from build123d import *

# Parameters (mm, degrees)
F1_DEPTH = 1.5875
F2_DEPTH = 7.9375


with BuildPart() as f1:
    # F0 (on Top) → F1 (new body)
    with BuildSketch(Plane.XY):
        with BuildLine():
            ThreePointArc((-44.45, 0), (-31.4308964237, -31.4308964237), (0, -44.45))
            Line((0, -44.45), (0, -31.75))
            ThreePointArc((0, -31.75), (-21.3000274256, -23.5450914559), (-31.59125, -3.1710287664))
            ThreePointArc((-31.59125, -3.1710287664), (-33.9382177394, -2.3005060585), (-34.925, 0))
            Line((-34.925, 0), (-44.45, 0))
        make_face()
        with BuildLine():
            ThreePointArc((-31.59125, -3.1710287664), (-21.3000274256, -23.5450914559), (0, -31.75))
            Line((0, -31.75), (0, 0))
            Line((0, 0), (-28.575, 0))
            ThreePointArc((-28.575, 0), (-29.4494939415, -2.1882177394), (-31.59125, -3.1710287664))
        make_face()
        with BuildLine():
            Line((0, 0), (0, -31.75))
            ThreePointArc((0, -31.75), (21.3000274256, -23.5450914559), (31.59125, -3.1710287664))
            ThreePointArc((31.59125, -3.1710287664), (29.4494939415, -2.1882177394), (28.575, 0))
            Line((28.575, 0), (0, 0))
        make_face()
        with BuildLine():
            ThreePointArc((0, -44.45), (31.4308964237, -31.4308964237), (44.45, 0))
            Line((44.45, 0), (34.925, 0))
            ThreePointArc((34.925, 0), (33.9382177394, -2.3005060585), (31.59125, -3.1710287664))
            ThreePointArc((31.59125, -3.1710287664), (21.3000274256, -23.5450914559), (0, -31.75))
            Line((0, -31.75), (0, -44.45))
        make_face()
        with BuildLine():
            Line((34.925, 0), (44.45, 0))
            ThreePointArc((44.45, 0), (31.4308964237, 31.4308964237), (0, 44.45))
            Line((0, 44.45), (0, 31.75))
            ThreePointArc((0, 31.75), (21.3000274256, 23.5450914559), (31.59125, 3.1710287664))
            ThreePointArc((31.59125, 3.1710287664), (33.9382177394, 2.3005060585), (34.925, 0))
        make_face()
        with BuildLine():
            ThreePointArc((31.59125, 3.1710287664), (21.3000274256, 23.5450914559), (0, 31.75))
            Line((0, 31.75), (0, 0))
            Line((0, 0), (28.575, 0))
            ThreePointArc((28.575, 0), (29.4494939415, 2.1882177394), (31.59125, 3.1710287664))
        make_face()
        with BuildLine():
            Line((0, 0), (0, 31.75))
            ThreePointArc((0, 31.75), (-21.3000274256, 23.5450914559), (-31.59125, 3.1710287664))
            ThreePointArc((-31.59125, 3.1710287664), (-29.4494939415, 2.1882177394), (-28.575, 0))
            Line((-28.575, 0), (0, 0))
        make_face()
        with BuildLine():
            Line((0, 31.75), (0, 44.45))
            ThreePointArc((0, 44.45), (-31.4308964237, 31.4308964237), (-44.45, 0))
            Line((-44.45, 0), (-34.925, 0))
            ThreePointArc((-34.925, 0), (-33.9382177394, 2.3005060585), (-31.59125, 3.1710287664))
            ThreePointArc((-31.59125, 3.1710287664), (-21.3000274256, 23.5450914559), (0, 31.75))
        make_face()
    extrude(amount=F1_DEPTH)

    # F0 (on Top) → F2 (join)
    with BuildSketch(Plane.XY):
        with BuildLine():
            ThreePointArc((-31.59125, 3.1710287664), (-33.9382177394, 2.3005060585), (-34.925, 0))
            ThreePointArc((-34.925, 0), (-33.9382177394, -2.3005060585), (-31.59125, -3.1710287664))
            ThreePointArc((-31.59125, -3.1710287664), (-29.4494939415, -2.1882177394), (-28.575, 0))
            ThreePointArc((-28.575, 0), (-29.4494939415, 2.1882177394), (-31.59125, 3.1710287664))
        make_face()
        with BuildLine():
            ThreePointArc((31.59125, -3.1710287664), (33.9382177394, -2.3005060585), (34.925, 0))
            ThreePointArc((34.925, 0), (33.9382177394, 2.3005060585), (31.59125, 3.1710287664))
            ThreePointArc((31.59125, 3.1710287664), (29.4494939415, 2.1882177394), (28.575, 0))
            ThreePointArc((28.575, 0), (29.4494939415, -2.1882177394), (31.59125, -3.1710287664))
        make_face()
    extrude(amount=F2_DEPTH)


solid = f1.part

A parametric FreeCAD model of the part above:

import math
import FreeCAD as App
import Part
import Sketcher
Q = App.Units.Quantity

doc = App.newDocument("Part")
body = doc.addObject("PartDesign::Body", "Body")

sketch1 = body.newObject("Sketcher::SketchObject", "Sketch")
sketch1.AttachmentSupport = (doc.getObject("XY_Plane"), [""])
sketch1.MapMode = "FlatFace"
sketch1.addGeometry([
    Part.ArcOfCircle(Part.Circle(App.Vector(0, 0, 0), App.Vector(0, 0, 1), 44.45), math.radians(180), math.radians(270)),
    Part.ArcOfCircle(Part.Circle(App.Vector(0, 0, 0), App.Vector(0, 0, 1), 44.45), math.radians(-90), math.radians(0)),
    Part.ArcOfCircle(Part.Circle(App.Vector(0, 0, 0), App.Vector(0, 0, 1), 44.45), math.radians(0), math.radians(90)),
    Part.ArcOfCircle(Part.Circle(App.Vector(0, 0, 0), App.Vector(0, 0, 1), 44.45), math.radians(90), math.radians(180)),
    Part.ArcOfCircle(Part.Circle(App.Vector(-31.75, 0, 0), App.Vector(0, 0, 1), 3.175), math.radians(0), math.radians(87.134016)),
    Part.ArcOfCircle(Part.Circle(App.Vector(-31.75, 0, 0), App.Vector(0, 0, 1), 3.175), math.radians(-87.134016), math.radians(0)),
    Part.ArcOfCircle(Part.Circle(App.Vector(-31.75, 0, 0), App.Vector(0, 0, 1), 3.175), math.radians(180), math.radians(272.865984)),
    Part.ArcOfCircle(Part.Circle(App.Vector(-31.75, 0, 0), App.Vector(0, 0, 1), 3.175), math.radians(87.134016), math.radians(180)),
    Part.ArcOfCircle(Part.Circle(App.Vector(31.75, 0, 0), App.Vector(0, 0, 1), 3.175), math.radians(0), math.radians(92.865984)),
    Part.ArcOfCircle(Part.Circle(App.Vector(31.75, 0, 0), App.Vector(0, 0, 1), 3.175), math.radians(-92.865984), math.radians(0)),
    Part.ArcOfCircle(Part.Circle(App.Vector(31.75, 0, 0), App.Vector(0, 0, 1), 3.175), math.radians(180), math.radians(267.134016)),
    Part.ArcOfCircle(Part.Circle(App.Vector(31.75, 0, 0), App.Vector(0, 0, 1), 3.175), math.radians(92.865984), math.radians(180)),
], False)
sketch1.addConstraint([
    Sketcher.Constraint("Tangent", 0, 2, 1, 1),
    Sketcher.Constraint("Tangent", 1, 2, 2, 1),
    Sketcher.Constraint("Tangent", 2, 2, 3, 1),
    Sketcher.Constraint("Tangent", 3, 2, 0, 1),
    Sketcher.Constraint("Tangent", 4, 1, 5, 2),
    Sketcher.Constraint("Tangent", 5, 1, 6, 2),
    Sketcher.Constraint("Tangent", 6, 1, 7, 2),
    Sketcher.Constraint("Tangent", 7, 1, 4, 2),
    Sketcher.Constraint("Tangent", 8, 1, 9, 2),
    Sketcher.Constraint("Tangent", 9, 1, 10, 2),
    Sketcher.Constraint("Tangent", 10, 1, 11, 2),
    Sketcher.Constraint("Tangent", 11, 1, 8, 2),
    Sketcher.Constraint("Coincident", 0, 3, -1, 1),
    Sketcher.Constraint("Equal", 0, 1),
    Sketcher.Constraint("Equal", 4, 5),
    Sketcher.Constraint("Equal", 7, 8),
    Sketcher.Constraint("Equal", 8, 9),
    Sketcher.Constraint("Symmetric", 4, 3, 8, 3, -1, 1),
    Sketcher.Constraint("Symmetric", 5, 1, 9, 1, -2),
    Sketcher.Constraint("PointOnObject", 0, 2, -2),
    Sketcher.Constraint("PointOnObject", 1, 2, -1),
    Sketcher.Constraint("PointOnObject", 2, 2, -2),
    Sketcher.Constraint("PointOnObject", 3, 2, -1),
    Sketcher.Constraint("PointOnObject", 4, 1, -1),
    Sketcher.Constraint("PointOnObject", 6, 1, -1),
    Sketcher.Constraint("PointOnObject", 8, 1, -1),
    Sketcher.Constraint("PointOnObject", 10, 1, -1),
    Sketcher.Constraint("Horizontal", 7, 1, 11, 1),
    Sketcher.Constraint("Vertical", 5, 1, 7, 1),
    Sketcher.Constraint("Radius", 0, Q("1.75 in")),
    Sketcher.Constraint("Radius", 4, Q("0.125 in")),
    Sketcher.Constraint("DistanceX", 4, 3, 8, 3, Q("2.5 in")),
    Sketcher.Constraint("DistanceX", 5, 1, -1, 1, Q("31.59125 mm")),
])
pad1 = body.newObject("PartDesign::Pad", "Pad")
pad1.Profile = sketch1
pad1.Length = Q("0.0625 in")

sketch2 = body.newObject("Sketcher::SketchObject", "Sketch001")
sketch2.AttachmentSupport = (doc.getObject("XY_Plane"), [""])
sketch2.MapMode = "FlatFace"
sketch2.addGeometry([
    Part.ArcOfCircle(Part.Circle(App.Vector(-31.75, 0, 0), App.Vector(0, 0, 1), 3.175), math.radians(87.134016), math.radians(180)),
    Part.ArcOfCircle(Part.Circle(App.Vector(-31.75, 0, 0), App.Vector(0, 0, 1), 3.175), math.radians(180), math.radians(272.865984)),
    Part.ArcOfCircle(Part.Circle(App.Vector(-31.75, 0, 0), App.Vector(0, 0, 1), 3.175), math.radians(-87.134016), math.radians(0)),
    Part.ArcOfCircle(Part.Circle(App.Vector(-31.75, 0, 0), App.Vector(0, 0, 1), 3.175), math.radians(0), math.radians(87.134016)),
    Part.ArcOfCircle(Part.Circle(App.Vector(31.75, 0, 0), App.Vector(0, 0, 1), 3.175), math.radians(-92.865984), math.radians(0)),
    Part.ArcOfCircle(Part.Circle(App.Vector(31.75, 0, 0), App.Vector(0, 0, 1), 3.175), math.radians(0), math.radians(92.865984)),
    Part.ArcOfCircle(Part.Circle(App.Vector(31.75, 0, 0), App.Vector(0, 0, 1), 3.175), math.radians(92.865984), math.radians(180)),
    Part.ArcOfCircle(Part.Circle(App.Vector(31.75, 0, 0), App.Vector(0, 0, 1), 3.175), math.radians(180), math.radians(267.134016)),
], False)
sketch2.addConstraint([
    Sketcher.Constraint("Tangent", 0, 2, 1, 1),
    Sketcher.Constraint("Tangent", 1, 2, 2, 1),
    Sketcher.Constraint("Tangent", 2, 2, 3, 1),
    Sketcher.Constraint("Tangent", 3, 2, 0, 1),
    Sketcher.Constraint("Tangent", 4, 2, 5, 1),
    Sketcher.Constraint("Tangent", 5, 2, 6, 1),
    Sketcher.Constraint("Tangent", 6, 2, 7, 1),
    Sketcher.Constraint("Tangent", 7, 2, 4, 1),
    Sketcher.Constraint("Equal", 0, 1),
    Sketcher.Constraint("Equal", 3, 4),
    Sketcher.Constraint("Equal", 4, 5),
    Sketcher.Constraint("Symmetric", 0, 3, 4, 3, -1, 1),
    Sketcher.Constraint("Symmetric", 3, 2, 5, 2, -2),
    Sketcher.Constraint("PointOnObject", 0, 2, -1),
    Sketcher.Constraint("PointOnObject", 2, 2, -1),
    Sketcher.Constraint("PointOnObject", 4, 2, -1),
    Sketcher.Constraint("PointOnObject", 6, 2, -1),
    Sketcher.Constraint("Horizontal", 1, 2, 7, 2),
    Sketcher.Constraint("Vertical", 1, 2, 3, 2),
    Sketcher.Constraint("Radius", 0, Q("0.125 in")),
    Sketcher.Constraint("DistanceX", 0, 3, 4, 3, Q("2.5 in")),
    Sketcher.Constraint("DistanceX", 1, 2, -1, 1, Q("31.59125 mm")),
])
pad2 = body.newObject("PartDesign::Pad", "Pad001")
pad2.Profile = sketch2
pad2.Length = Q("0.3125 in")

doc.recompute()
